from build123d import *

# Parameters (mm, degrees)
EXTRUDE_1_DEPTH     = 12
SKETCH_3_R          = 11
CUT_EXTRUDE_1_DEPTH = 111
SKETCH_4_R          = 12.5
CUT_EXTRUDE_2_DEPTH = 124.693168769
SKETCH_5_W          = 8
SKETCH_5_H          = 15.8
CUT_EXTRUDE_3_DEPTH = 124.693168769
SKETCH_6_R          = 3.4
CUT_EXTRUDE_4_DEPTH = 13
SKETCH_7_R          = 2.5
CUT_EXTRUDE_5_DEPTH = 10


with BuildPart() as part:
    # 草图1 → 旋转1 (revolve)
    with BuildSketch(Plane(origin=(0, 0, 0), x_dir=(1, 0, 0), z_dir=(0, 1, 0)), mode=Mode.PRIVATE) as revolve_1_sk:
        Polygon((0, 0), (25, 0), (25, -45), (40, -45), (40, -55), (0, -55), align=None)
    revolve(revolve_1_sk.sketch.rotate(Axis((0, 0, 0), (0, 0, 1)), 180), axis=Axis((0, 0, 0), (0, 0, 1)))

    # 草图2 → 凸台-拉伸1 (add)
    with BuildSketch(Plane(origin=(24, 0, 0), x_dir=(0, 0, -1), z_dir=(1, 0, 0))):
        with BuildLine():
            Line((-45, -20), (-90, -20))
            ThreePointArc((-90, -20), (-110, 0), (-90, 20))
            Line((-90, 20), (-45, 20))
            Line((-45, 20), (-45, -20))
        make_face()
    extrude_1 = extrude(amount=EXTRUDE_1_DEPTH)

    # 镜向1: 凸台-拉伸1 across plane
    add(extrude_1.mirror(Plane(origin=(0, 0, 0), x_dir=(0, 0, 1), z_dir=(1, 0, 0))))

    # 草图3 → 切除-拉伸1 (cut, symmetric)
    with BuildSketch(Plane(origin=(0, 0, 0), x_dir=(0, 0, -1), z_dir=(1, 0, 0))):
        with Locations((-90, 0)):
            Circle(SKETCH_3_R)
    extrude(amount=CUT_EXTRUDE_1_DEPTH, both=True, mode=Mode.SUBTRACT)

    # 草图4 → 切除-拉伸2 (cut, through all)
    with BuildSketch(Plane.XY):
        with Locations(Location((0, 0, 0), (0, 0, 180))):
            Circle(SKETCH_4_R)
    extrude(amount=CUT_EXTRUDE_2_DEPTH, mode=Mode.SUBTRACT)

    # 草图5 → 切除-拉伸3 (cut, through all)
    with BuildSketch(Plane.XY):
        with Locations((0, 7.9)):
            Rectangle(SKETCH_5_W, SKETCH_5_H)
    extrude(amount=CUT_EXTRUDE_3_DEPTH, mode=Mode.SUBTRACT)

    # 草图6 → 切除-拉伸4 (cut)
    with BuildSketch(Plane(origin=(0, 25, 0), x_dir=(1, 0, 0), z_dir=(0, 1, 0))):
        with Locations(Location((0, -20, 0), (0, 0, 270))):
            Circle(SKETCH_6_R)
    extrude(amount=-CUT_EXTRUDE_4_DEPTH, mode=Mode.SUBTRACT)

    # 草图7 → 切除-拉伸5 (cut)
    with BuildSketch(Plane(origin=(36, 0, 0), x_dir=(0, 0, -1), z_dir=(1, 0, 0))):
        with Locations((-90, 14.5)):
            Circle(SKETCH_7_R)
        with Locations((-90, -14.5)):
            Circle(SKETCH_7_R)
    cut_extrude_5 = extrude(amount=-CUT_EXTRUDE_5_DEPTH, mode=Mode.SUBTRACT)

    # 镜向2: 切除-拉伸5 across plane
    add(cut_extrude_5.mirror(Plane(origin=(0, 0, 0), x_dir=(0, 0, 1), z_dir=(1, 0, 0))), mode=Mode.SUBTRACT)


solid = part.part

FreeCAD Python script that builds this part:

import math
import FreeCAD as App
import Part
import Sketcher
from FreeCAD import Vector

doc = App.newDocument("Part")
params = doc.addObject("Spreadsheet::Sheet", "Params")
for row, (alias, value) in enumerate([
    ("sketch1_width", "25 mm"),
    ("sketch1_width2", "40 mm"),
    ("sketch1_height", "55 mm"),
    ("sketch1_height2", "10 mm"),
    ("revolution_angle", "360 deg"),
    ("sketch2_radius", "20 mm"),
    ("sketch2_height", "45 mm"),
    ("pad1_length", "12 mm"),
    ("sketch3_diameter", "22 mm"),
    ("pocket1_length", "222 mm"),
    ("sketch4_diameter", "25 mm"),
    ("sketch5_width", "8 mm"),
    ("sketch5_height", "15.8 mm"),
    ("sketch6_diameter", "6.8 mm"),
    ("pocket4_length", "13 mm"),
    ("sketch7_diameter", "5 mm"),
    ("pocket5_length", "10 mm"),
], start=1):
    params.set(f"A{row}", alias)
    params.set(f"B{row}", "=" + value)
    params.setAlias(f"B{row}", alias)

body = doc.addObject("PartDesign::Body", "Body")

sketch1 = body.newObject("Sketcher::SketchObject", "Sketch")
sketch1.AttachmentSupport = (doc.getObject("XZ_Plane"), [""])
sketch1.MapMode = "FlatFace"
sketch1.addGeometry([
    Part.LineSegment(Vector(25, 0, 0), Vector(0, 0, 0)),
    Part.LineSegment(Vector(0, 0, 0), Vector(0, 55, 0)),
    Part.LineSegment(Vector(0, 55, 0), Vector(40, 55, 0)),
    Part.LineSegment(Vector(40, 55, 0), Vector(40, 45, 0)),
    Part.LineSegment(Vector(40, 45, 0), Vector(25, 45, 0)),
    Part.LineSegment(Vector(25, 45, 0), Vector(25, 0, 0)),
], False)
sketch1.addConstraint([
    Sketcher.Constraint("Coincident", 0, 2, 1, 1),
    Sketcher.Constraint("Coincident", 1, 2, 2, 1),
    Sketcher.Constraint("Coincident", 2, 2, 3, 1),
    Sketcher.Constraint("Coincident", 3, 2, 4, 1),
    Sketcher.Constraint("Coincident", 4, 2, 5, 1),
    Sketcher.Constraint("Coincident", 5, 2, 0, 1),
    Sketcher.Constraint("Horizontal", 0),
    Sketcher.Constraint("Vertical", 1),
    Sketcher.Constraint("Horizontal", 2),
    Sketcher.Constraint("Vertical", 3),
    Sketcher.Constraint("Horizontal", 4),
    Sketcher.Constraint("Vertical", 5),
    Sketcher.Constraint("Coincident", 0, 2, -1, 1),
    Sketcher.Constraint("DistanceX", 0, 2, 0, 1, 25.0),
    Sketcher.Constraint("DistanceX", 2, 1, 2, 2, 40.0),
    Sketcher.Constraint("DistanceY", 1, 1, 1, 2, 55.0),
    Sketcher.Constraint("DistanceY", 3, 2, 3, 1, 10.0),
])
sketch1.setExpression("Constraints[13]", "Params.sketch1_width")
sketch1.setExpression("Constraints[14]", "Params.sketch1_width2")
sketch1.setExpression("Constraints[15]", "Params.sketch1_height")
sketch1.setExpression("Constraints[16]", "Params.sketch1_height2")
revolution = body.newObject("PartDesign::Revolution", "Revolution")
revolution.Profile = sketch1
revolution.ReferenceAxis = (sketch1, ["V_Axis"])
revolution.setExpression("Angle", "Params.revolution_angle")

sketch2 = body.newObject("Sketcher::SketchObject", "Sketch001")
sketch2.AttachmentSupport = (doc.getObject("YZ_Plane"), [""])
sketch2.MapMode = "FlatFace"
sketch2.AttachmentOffset = App.Placement(Vector(0, 0, 24), App.Rotation())
sketch2.addGeometry([
    Part.LineSegment(Vector(-20, 90, 0), Vector(-20, 45, 0)),
    Part.LineSegment(Vector(-20, 45, 0), Vector(20, 45, 0)),
    Part.LineSegment(Vector(20, 45, 0), Vector(20, 90, 0)),
    Part.ArcOfCircle(Part.Circle(Vector(0, 90, 0), Vector(0, 0, 1), 20), math.radians(0), math.radians(180)),
], False)
sketch2.addConstraint([
    Sketcher.Constraint("Coincident", 0, 2, 1, 1),
    Sketcher.Constraint("Coincident", 1, 2, 2, 1),
    Sketcher.Constraint("Tangent", 2, 2, 3, 1),
    Sketcher.Constraint("Tangent", 3, 2, 0, 1),
    Sketcher.Constraint("Vertical", 0),
    Sketcher.Constraint("Horizontal", 1),
    Sketcher.Constraint("Vertical", 2),
    Sketcher.Constraint("PointOnObject", 3, 3, -2),
    Sketcher.Constraint("Radius", 3, 20.0),
    Sketcher.Constraint("DistanceY", 0, 2, 0, 1, 45.0),
    Sketcher.Constraint("DistanceY", -1, 1, 3, 3, 90.0),
])
sketch2.setExpression("Constraints[8]", "Params.sketch2_radius")
sketch2.setExpression("Constraints[9]", "Params.sketch2_height")
pad1 = body.newObject("PartDesign::Pad", "Pad")
pad1.Profile = sketch2
pad1.setExpression("Length", "Params.pad1_length")
doc.recompute()

mirrored = body.newObject("PartDesign::Mirrored", "Mirrored")
mirrored.Originals = [pad1]
mirrored.MirrorPlane = (doc.getObject("YZ_Plane"), [""])
body.Tip = mirrored

sketch3 = body.newObject("Sketcher::SketchObject", "Sketch002")
sketch3.AttachmentSupport = (doc.getObject("YZ_Plane"), [""])
sketch3.MapMode = "FlatFace"
sketch3.addGeometry(Part.Circle(Vector(0, 90, 0), Vector(0, 0, 1), 11), False)
sketch3.addConstraint([
    Sketcher.Constraint("PointOnObject", 0, 3, -2),
    Sketcher.Constraint("Diameter", 0, 22.0),
    Sketcher.Constraint("DistanceY", -1, 1, 0, 3, 90.0),
])
sketch3.setExpression("Constraints[1]", "Params.sketch3_diameter")
pocket1 = body.newObject("PartDesign::Pocket", "Pocket")
pocket1.Profile = sketch3
pocket1.setExpression("Length", "Params.pocket1_length")
pocket1.Midplane = True

sketch4 = body.newObject("Sketcher::SketchObject", "Sketch003")
sketch4.AttachmentSupport = (doc.getObject("XY_Plane"), [""])
sketch4.MapMode = "FlatFace"
sketch4.addGeometry(Part.Circle(Vector(0, 0, 0), Vector(0, 0, 1), 12), False)
sketch4.addConstraint([
    Sketcher.Constraint("Coincident", 0, 3, -1, 1),
    Sketcher.Constraint("Diameter", 0, 25.0),
])
sketch4.setExpression("Constraints[1]", "Params.sketch4_diameter")
pocket2 = body.newObject("PartDesign::Pocket", "Pocket001")
pocket2.Profile = sketch4
pocket2.Type = "ThroughAll"
pocket2.Reversed = True

sketch5 = body.newObject("Sketcher::SketchObject", "Sketch004")
sketch5.AttachmentSupport = (doc.getObject("XY_Plane"), [""])
sketch5.MapMode = "FlatFace"
sketch5.addGeometry([
    Part.LineSegment(Vector(-4, 16, 0), Vector(-4, 0, 0)),
    Part.LineSegment(Vector(-4, 0, 0), Vector(4, 0, 0)),
    Part.LineSegment(Vector(4, 0, 0), Vector(4, 16, 0)),
    Part.LineSegment(Vector(4, 16, 0), Vector(-4, 16, 0)),
], False)
sketch5.addConstraint([
    Sketcher.Constraint("Coincident", 0, 2, 1, 1),
    Sketcher.Constraint("Coincident", 1, 2, 2, 1),
    Sketcher.Constraint("Coincident", 2, 2, 3, 1),
    Sketcher.Constraint("Coincident", 3, 2, 0, 1),
    Sketcher.Constraint("Vertical", 0),
    Sketcher.Constraint("Horizontal", 1),
    Sketcher.Constraint("Vertical", 2),
    Sketcher.Constraint("Horizontal", 3),
    Sketcher.Constraint("Symmetric", 0, 2, 1, 2, -1, 1),
    Sketcher.Constraint("DistanceX", 1, 1, 1, 2, 8.0),
    Sketcher.Constraint("DistanceY", 0, 2, 0, 1, 15.8),
])
sketch5.setExpression("Constraints[9]", "Params.sketch5_width")
sketch5.setExpression("Constraints[10]", "Params.sketch5_height")
pocket3 = body.newObject("PartDesign::Pocket", "Pocket002")
pocket3.Profile = sketch5
pocket3.Type = "ThroughAll"
pocket3.Reversed = True

sketch6 = body.newObject("Sketcher::SketchObject", "Sketch005")
sketch6.AttachmentSupport = (doc.getObject("XZ_Plane"), [""])
sketch6.MapMode = "FlatFace"
sketch6.AttachmentOffset = App.Placement(Vector(0, 0, -25), App.Rotation())
sketch6.addGeometry(Part.Circle(Vector(0, 20, 0), Vector(0, 0, 1), 3.4), False)
sketch6.addConstraint([
    Sketcher.Constraint("PointOnObject", 0, 3, -2),
    Sketcher.Constraint("Diameter", 0, 6.8),
    Sketcher.Constraint("DistanceY", -1, 1, 0, 3, 20.0),
])
sketch6.setExpression("Constraints[1]", "Params.sketch6_diameter")
pocket4 = body.newObject("PartDesign::Pocket", "Pocket003")
pocket4.Profile = sketch6
pocket4.setExpression("Length", "Params.pocket4_length")
pocket4.Reversed = True

sketch7 = body.newObject("Sketcher::SketchObject", "Sketch006")
sketch7.AttachmentSupport = (doc.getObject("YZ_Plane"), [""])
sketch7.MapMode = "FlatFace"
sketch7.AttachmentOffset = App.Placement(Vector(0, 0, 36), App.Rotation())
sketch7.addGeometry([
    Part.Circle(Vector(14.5, 90, 0), Vector(0, 0, 1), 2.5),
    Part.Circle(Vector(-14.5, 90, 0), Vector(0, 0, 1), 2.5),
], False)
sketch7.addConstraint([
    Sketcher.Constraint("Equal", 0, 1),
    Sketcher.Constraint("Symmetric", 0, 3, 1, 3, -2),
    Sketcher.Constraint("Diameter", 0, 5.0),
    Sketcher.Constraint("DistanceY", -1, 1, 0, 3, 90.0),
    Sketcher.Constraint("DistanceX", 1, 3, 0, 3, 29.0),
])
sketch7.setExpression("Constraints[2]", "Params.sketch7_diameter")
pocket5 = body.newObject("PartDesign::Pocket", "Pocket004")
pocket5.Profile = sketch7
pocket5.setExpression("Length", "Params.pocket5_length")
doc.recompute()

mirrored2 = body.newObject("PartDesign::Mirrored", "Mirrored001")
mirrored2.Originals = [pocket5]
mirrored2.MirrorPlane = (doc.getObject("YZ_Plane"), [""])
body.Tip = mirrored2

doc.recompute()
